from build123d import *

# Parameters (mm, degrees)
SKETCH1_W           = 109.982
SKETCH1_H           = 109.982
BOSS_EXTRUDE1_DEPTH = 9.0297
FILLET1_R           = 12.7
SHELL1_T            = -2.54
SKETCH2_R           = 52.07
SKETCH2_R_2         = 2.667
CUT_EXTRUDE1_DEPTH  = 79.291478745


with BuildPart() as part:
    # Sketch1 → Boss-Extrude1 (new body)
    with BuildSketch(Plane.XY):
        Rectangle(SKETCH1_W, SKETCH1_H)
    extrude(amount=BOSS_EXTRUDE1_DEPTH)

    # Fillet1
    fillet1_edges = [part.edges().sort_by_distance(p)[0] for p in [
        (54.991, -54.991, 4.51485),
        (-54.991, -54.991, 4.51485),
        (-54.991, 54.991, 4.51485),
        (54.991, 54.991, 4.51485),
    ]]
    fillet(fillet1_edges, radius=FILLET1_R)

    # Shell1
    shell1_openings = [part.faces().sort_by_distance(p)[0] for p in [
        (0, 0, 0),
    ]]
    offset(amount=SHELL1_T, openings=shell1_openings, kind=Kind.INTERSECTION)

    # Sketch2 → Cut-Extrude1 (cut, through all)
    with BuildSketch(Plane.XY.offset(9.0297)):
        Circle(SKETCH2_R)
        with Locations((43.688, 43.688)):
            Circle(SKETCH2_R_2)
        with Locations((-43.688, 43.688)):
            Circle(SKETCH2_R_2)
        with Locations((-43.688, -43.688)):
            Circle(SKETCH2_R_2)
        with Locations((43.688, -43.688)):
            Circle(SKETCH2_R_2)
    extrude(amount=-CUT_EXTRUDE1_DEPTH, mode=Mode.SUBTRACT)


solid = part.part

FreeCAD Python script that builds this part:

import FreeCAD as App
import Part
import Sketcher

V = App.Vector
Q = App.Units.Quantity


def edges_at(feature, points):
    """Names of the edges that pass closest to the given points."""
    edges = feature.Shape.Edges
    near = lambda p: min(range(len(edges)), key=lambda i: edges[i].distToShape(Part.Vertex(*p))[0])
    return sorted({f"Edge{near(p) + 1}" for p in points})


def faces_at(feature, points):
    """Names of the faces that lie closest to the given points."""
    faces = feature.Shape.Faces
    near = lambda p: min(range(len(faces)), key=lambda i: faces[i].distToShape(Part.Vertex(*p))[0])
    return sorted({f"Face{near(p) + 1}" for p in points})


def add_polygon(sketch, points):
    """Adds a closed chain of lines whose ends are joined by coincident constraints."""
    first, n = sketch.GeometryCount, len(points)
    for a, b in zip(points, points[1:] + points[:1]):
        sketch.addGeometry(Part.LineSegment(App.Vector(*a, 0), App.Vector(*b, 0)), False)
    for i in range(n):
        sketch.addConstraint(Sketcher.Constraint("Coincident", first + i, 2, first + (i + 1) % n, 1))

doc = App.newDocument("Part")
body = doc.addObject("PartDesign::Body", "Body")

# Sketch on XY plane
sketch1 = body.newObject("Sketcher::SketchObject", "Sketch")
sketch1.AttachmentSupport = (doc.getObject("XY_Plane"), [""])
sketch1.MapMode = "FlatFace"
add_polygon(sketch1, [(-54.991, 54.991), (-54.991, -54.991), (54.991, -54.991), (54.991, 54.991)])  # lines 0-3
sketch1.addConstraint(Sketcher.Constraint("Vertical", 0))
sketch1.addConstraint(Sketcher.Constraint("Horizontal", 1))
sketch1.addConstraint(Sketcher.Constraint("Vertical", 2))
sketch1.addConstraint(Sketcher.Constraint("Horizontal", 3))
sketch1.addConstraint(Sketcher.Constraint("Symmetric", 0, 2, 2, 2, -1, 1))
sketch1.addConstraint(Sketcher.Constraint("Equal", 3, 0))
sketch1.addConstraint(Sketcher.Constraint("DistanceX", 1, 1, 1, 2, Q("4.33 in")))
pad1 = body.newObject("PartDesign::Pad", "Pad")
pad1.Profile = sketch1
pad1.Length = Q("0.3555 in")
doc.recompute()

fillet = body.newObject("PartDesign::Fillet", "Fillet")
fillet.Base = (pad1, edges_at(pad1, [
    (54.991, -54.991, 4.515),
    (-54.991, -54.991, 4.515),
    (-54.991, 54.991, 4.515),
    (54.991, 54.991, 4.515),
]))
fillet.Radius = Q("0.5 in")
doc.recompute()

thickness = body.newObject("PartDesign::Thickness", "Thickness")
thickness.Base = (fillet, faces_at(fillet, [(0, 0, 0)]))
thickness.Value = Q("0.1 in")
thickness.Reversed = True
thickness.Join = "Intersection"

# Sketch on XY plane
sketch2 = body.newObject("Sketcher::SketchObject", "Sketch001")
sketch2.AttachmentSupport = (doc.getObject("XY_Plane"), [""])
sketch2.MapMode = "FlatFace"
sketch2.AttachmentOffset = App.Placement(V(0, 0, 0.3555 * 25.4), App.Rotation())
sketch2.addGeometry(Part.Circle(V(0, 0, 0), V(0, 0, 1), 52.07), False)
sketch2.addGeometry(Part.Circle(V(43.688, 43.688, 0), V(0, 0, 1), 2.667), False)
sketch2.addGeometry(Part.Circle(V(-43.688, 43.688, 0), V(0, 0, 1), 2.667), False)
sketch2.addGeometry(Part.Circle(V(-43.688, -43.688, 0), V(0, 0, 1), 2.667), False)
sketch2.addGeometry(Part.Circle(V(43.688, -43.688, 0), V(0, 0, 1), 2.667), False)
sketch2.addConstraint(Sketcher.Constraint("Coincident", 0, 3, -1, 1))
sketch2.addConstraint(Sketcher.Constraint("Equal", 1, 2))
sketch2.addConstraint(Sketcher.Constraint("Equal", 2, 3))
sketch2.addConstraint(Sketcher.Constraint("Equal", 3, 4))
sketch2.addConstraint(Sketcher.Constraint("Symmetric", 1, 3, 3, 3, -1, 1))
sketch2.addConstraint(Sketcher.Constraint("Symmetric", 2, 3, 4, 3, -1, 1))
sketch2.addConstraint(Sketcher.Constraint("Symmetric", 1, 3, 2, 3, -2))
sketch2.addConstraint(Sketcher.Constraint("Diameter", 0, Q("4.1 in")))
sketch2.addConstraint(Sketcher.Constraint("Diameter", 1, Q("0.21 in")))
sketch2.addConstraint(Sketcher.Constraint("DistanceX", -1, 1, 1, 3, Q("1.72 in")))
sketch2.addConstraint(Sketcher.Constraint("DistanceY", -1, 1, 1, 3, Q("1.72 in")))
pocket1 = body.newObject("PartDesign::Pocket", "Pocket")
pocket1.Profile = sketch2
pocket1.Type = "ThroughAll"

doc.recompute()
